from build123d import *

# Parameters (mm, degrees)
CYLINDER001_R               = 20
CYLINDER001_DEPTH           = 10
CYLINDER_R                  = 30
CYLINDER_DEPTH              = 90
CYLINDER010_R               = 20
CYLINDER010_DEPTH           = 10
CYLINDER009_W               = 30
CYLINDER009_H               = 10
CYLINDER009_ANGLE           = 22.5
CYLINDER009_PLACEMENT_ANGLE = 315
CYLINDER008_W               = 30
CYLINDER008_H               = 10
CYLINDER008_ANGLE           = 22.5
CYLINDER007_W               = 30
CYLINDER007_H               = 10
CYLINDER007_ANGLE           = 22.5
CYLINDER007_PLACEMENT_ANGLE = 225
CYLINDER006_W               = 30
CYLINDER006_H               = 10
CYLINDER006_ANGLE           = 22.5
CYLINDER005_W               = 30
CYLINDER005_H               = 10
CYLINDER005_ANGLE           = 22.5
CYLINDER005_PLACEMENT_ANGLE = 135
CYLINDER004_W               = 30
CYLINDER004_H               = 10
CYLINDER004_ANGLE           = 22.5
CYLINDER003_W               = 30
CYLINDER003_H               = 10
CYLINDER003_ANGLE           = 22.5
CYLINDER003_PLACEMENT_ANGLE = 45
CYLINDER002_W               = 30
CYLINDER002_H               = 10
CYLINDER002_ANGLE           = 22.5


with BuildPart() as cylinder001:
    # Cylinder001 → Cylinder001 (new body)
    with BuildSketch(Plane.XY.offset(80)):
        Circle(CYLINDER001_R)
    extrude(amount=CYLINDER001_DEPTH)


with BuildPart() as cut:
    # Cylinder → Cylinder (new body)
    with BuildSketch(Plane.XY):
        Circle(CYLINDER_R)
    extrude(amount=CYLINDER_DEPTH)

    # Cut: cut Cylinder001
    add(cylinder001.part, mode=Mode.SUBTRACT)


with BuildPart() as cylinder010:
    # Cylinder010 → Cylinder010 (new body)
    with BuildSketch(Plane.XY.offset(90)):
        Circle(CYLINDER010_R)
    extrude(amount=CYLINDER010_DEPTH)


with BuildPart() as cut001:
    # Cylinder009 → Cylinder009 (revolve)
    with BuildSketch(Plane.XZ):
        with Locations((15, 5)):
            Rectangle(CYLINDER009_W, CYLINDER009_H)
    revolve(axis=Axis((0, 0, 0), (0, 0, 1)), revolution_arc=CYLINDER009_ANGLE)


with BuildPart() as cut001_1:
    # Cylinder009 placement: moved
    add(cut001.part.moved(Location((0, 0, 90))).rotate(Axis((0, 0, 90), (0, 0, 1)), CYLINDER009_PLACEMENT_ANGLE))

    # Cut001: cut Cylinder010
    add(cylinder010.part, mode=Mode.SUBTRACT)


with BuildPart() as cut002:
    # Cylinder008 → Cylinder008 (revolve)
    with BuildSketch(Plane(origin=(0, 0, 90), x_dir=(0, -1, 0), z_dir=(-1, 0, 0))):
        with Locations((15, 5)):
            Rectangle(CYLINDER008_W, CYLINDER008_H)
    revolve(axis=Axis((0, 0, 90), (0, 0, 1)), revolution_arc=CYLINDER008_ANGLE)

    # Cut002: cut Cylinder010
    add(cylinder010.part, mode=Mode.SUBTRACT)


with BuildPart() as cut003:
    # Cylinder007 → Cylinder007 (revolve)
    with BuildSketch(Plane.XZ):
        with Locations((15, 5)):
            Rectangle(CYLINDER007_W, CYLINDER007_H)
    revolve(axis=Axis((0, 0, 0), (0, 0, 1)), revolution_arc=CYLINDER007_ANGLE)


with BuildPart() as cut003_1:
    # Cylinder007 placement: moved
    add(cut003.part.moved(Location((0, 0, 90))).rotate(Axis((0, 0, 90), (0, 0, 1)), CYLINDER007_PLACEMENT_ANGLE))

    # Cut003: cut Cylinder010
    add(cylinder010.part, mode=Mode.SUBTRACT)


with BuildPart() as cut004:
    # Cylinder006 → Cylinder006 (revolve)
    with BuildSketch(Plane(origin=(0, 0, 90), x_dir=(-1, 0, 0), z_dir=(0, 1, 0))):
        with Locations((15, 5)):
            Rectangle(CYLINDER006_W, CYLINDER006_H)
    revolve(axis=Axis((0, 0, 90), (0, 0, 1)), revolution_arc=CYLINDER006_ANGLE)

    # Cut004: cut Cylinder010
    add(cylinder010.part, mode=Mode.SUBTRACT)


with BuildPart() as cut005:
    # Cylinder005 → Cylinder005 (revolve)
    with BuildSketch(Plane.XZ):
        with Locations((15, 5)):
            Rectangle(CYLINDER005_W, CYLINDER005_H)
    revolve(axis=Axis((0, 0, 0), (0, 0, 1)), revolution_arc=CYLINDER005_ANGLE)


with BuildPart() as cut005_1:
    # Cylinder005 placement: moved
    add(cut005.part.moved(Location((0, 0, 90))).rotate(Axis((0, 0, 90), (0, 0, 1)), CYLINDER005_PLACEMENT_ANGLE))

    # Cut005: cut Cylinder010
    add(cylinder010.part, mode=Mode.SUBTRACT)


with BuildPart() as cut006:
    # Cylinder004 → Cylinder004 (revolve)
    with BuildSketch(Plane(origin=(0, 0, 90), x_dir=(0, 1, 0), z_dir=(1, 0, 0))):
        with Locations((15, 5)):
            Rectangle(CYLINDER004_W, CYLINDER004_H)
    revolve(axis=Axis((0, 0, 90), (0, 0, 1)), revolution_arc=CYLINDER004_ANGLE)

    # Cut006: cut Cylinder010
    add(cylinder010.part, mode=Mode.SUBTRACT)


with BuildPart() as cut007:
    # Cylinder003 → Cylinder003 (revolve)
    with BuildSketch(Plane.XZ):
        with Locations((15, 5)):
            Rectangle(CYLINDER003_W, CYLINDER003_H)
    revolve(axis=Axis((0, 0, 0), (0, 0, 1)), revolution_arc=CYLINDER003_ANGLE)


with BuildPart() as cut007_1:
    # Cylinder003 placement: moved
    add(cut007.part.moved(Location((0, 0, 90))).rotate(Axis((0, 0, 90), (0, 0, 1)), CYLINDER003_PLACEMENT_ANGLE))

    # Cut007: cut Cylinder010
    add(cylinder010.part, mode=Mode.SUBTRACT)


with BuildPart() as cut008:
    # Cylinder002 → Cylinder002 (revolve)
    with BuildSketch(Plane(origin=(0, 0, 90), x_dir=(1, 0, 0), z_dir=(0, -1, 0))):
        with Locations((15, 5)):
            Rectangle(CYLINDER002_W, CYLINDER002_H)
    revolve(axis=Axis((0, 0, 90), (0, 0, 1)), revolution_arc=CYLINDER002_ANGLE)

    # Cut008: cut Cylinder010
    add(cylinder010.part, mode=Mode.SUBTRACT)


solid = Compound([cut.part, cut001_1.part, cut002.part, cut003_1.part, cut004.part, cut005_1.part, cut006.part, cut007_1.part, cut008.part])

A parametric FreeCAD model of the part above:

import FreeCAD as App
import Part
import Sketcher
from FreeCAD import Vector
Q = App.Units.Quantity

doc = App.newDocument("Part")
body = doc.addObject("PartDesign::Body", "Body")

sketch1 = body.newObject("Sketcher::SketchObject", "Sketch")
sketch1.AttachmentSupport = (doc.getObject("XY_Plane"), [""])
sketch1.MapMode = "FlatFace"
sketch1.AttachmentOffset = App.Placement(Vector(0, 0, 80), App.Rotation())
sketch1.addGeometry(Part.Circle(Vector(0, 0, 0), Vector(0, 0, 1), 20), False)
sketch1.addConstraint(Sketcher.Constraint("Coincident", 0, 3, -1, 1))
sketch1.addConstraint(Sketcher.Constraint("Diameter", 0, Q("40 mm")))
pad1 = body.newObject("PartDesign::Pad", "Pad")
pad1.Profile = sketch1
pad1.Length = 10
body2 = doc.addObject("PartDesign::Body", "Body001")

sketch2 = body2.newObject("Sketcher::SketchObject", "Sketch001")
sketch2.AttachmentSupport = (doc.getObject("XY_Plane001"), [""])
sketch2.MapMode = "FlatFace"
sketch2.addGeometry(Part.Circle(Vector(0, 0, 0), Vector(0, 0, 1), 30), False)
sketch2.addConstraint(Sketcher.Constraint("Coincident", 0, 3, -1, 1))
sketch2.addConstraint(Sketcher.Constraint("Diameter", 0, Q("60 mm")))
pad2 = body2.newObject("PartDesign::Pad", "Pad001")
pad2.Profile = sketch2
pad2.Length = 90
doc.recompute()

boolean = body2.newObject("PartDesign::Boolean", "Boolean")
boolean.Type = "Cut"
boolean.addObjects([body])
body3 = doc.addObject("PartDesign::Body", "Body002")

sketch3 = body3.newObject("Sketcher::SketchObject", "Sketch002")
sketch3.AttachmentSupport = (doc.getObject("XY_Plane002"), [""])
sketch3.MapMode = "FlatFace"
sketch3.AttachmentOffset = App.Placement(Vector(0, 0, 90), App.Rotation())
sketch3.addGeometry(Part.Circle(Vector(0, 0, 0), Vector(0, 0, 1), 20), False)
sketch3.addConstraint(Sketcher.Constraint("Coincident", 0, 3, -1, 1))
sketch3.addConstraint(Sketcher.Constraint("Diameter", 0, Q("40 mm")))
pad3 = body3.newObject("PartDesign::Pad", "Pad002")
pad3.Profile = sketch3
pad3.Length = 10
body4 = doc.addObject("PartDesign::Body", "Body003")

sketch4 = body4.newObject("Sketcher::SketchObject", "Sketch003")
sketch4.AttachmentSupport = (doc.getObject("XZ_Plane003"), [""])
sketch4.MapMode = "FlatFace"
sketch4.addGeometry(Part.LineSegment(Vector(0, 10, 0), Vector(0, 0, 0)), False)
sketch4.addGeometry(Part.LineSegment(Vector(0, 0, 0), Vector(30, 0, 0)), False)
sketch4.addGeometry(Part.LineSegment(Vector(30, 0, 0), Vector(30, 10, 0)), False)
sketch4.addGeometry(Part.LineSegment(Vector(30, 10, 0), Vector(0, 10, 0)), False)
sketch4.addConstraint(Sketcher.Constraint("Coincident", 0, 2, 1, 1))
sketch4.addConstraint(Sketcher.Constraint("Coincident", 1, 2, 2, 1))
sketch4.addConstraint(Sketcher.Constraint("Coincident", 2, 2, 3, 1))
sketch4.addConstraint(Sketcher.Constraint("Coincident", 3, 2, 0, 1))
sketch4.addConstraint(Sketcher.Constraint("Vertical", 0))
sketch4.addConstraint(Sketcher.Constraint("Horizontal", 1))
sketch4.addConstraint(Sketcher.Constraint("Vertical", 2))
sketch4.addConstraint(Sketcher.Constraint("Horizontal", 3))
sketch4.addConstraint(Sketcher.Constraint("Coincident", 0, 2, -1, 1))
sketch4.addConstraint(Sketcher.Constraint("DistanceX", 1, 1, 1, 2, Q("30 mm")))
sketch4.addConstraint(Sketcher.Constraint("DistanceY", 0, 2, 0, 1, Q("10 mm")))
revolution = body4.newObject("PartDesign::Revolution", "Revolution")
revolution.Profile = sketch4
revolution.ReferenceAxis = (sketch4, ["V_Axis"])
revolution.Angle = 22.5
body5 = doc.addObject("PartDesign::Body", "Body004")
doc.recompute()

body4.Placement = App.Placement(Vector(0, 0, 90), App.Rotation(Vector(0, 0, 1), 315))
boolean2 = body5.newObject("PartDesign::Boolean", "Boolean001")
boolean2.Type = "Fuse"
boolean2.addObjects([body4])
doc.recompute()

body6 = doc.addObject("PartDesign::Body", "Body005")
body6.BaseFeature = body3
boolean3 = body5.newObject("PartDesign::Boolean", "Boolean002")
boolean3.Type = "Cut"
boolean3.addObjects([body6])
doc.recompute()
body7 = doc.addObject("PartDesign::Body", "Body006")

sketch5 = body7.newObject("Sketcher::SketchObject", "Sketch004")
sketch5.AttachmentSupport = (doc.getObject("YZ_Plane006"), [""])
sketch5.MapMode = "FlatFace"
sketch5.addGeometry(Part.LineSegment(Vector(0, 100, 0), Vector(0, 90, 0)), False)
sketch5.addGeometry(Part.LineSegment(Vector(0, 90, 0), Vector(-30, 90, 0)), False)
sketch5.addGeometry(Part.LineSegment(Vector(-30, 90, 0), Vector(-30, 100, 0)), False)
sketch5.addGeometry(Part.LineSegment(Vector(-30, 100, 0), Vector(0, 100, 0)), False)
sketch5.addConstraint(Sketcher.Constraint("Coincident", 0, 2, 1, 1))
sketch5.addConstraint(Sketcher.Constraint("Coincident", 1, 2, 2, 1))
sketch5.addConstraint(Sketcher.Constraint("Coincident", 2, 2, 3, 1))
sketch5.addConstraint(Sketcher.Constraint("Coincident", 3, 2, 0, 1))
sketch5.addConstraint(Sketcher.Constraint("Vertical", 0))
sketch5.addConstraint(Sketcher.Constraint("Horizontal", 1))
sketch5.addConstraint(Sketcher.Constraint("Vertical", 2))
sketch5.addConstraint(Sketcher.Constraint("Horizontal", 3))
sketch5.addConstraint(Sketcher.Constraint("PointOnObject", 0, 2, -2))
sketch5.addConstraint(Sketcher.Constraint("DistanceX", 1, 2, 1, 1, Q("30 mm")))
sketch5.addConstraint(Sketcher.Constraint("DistanceY", 0, 2, 0, 1, Q("10 mm")))
sketch5.addConstraint(Sketcher.Constraint("DistanceY", -1, 1, 0, 2, Q("90 mm")))
revolution2 = body7.newObject("PartDesign::Revolution", "Revolution001")
revolution2.Profile = sketch5
revolution2.ReferenceAxis = (sketch5, ["V_Axis"])
revolution2.Angle = 22.5
doc.recompute()

body8 = doc.addObject("PartDesign::Body", "Body007")
body8.BaseFeature = body3
boolean4 = body7.newObject("PartDesign::Boolean", "Boolean003")
boolean4.Type = "Cut"
boolean4.addObjects([body8])
doc.recompute()
body9 = doc.addObject("PartDesign::Body", "Body008")

sketch6 = body9.newObject("Sketcher::SketchObject", "Sketch005")
sketch6.AttachmentSupport = (doc.getObject("XZ_Plane008"), [""])
sketch6.MapMode = "FlatFace"
sketch6.addGeometry(Part.LineSegment(Vector(0, 10, 0), Vector(0, 0, 0)), False)
sketch6.addGeometry(Part.LineSegment(Vector(0, 0, 0), Vector(30, 0, 0)), False)
sketch6.addGeometry(Part.LineSegment(Vector(30, 0, 0), Vector(30, 10, 0)), False)
sketch6.addGeometry(Part.LineSegment(Vector(30, 10, 0), Vector(0, 10, 0)), False)
sketch6.addConstraint(Sketcher.Constraint("Coincident", 0, 2, 1, 1))
sketch6.addConstraint(Sketcher.Constraint("Coincident", 1, 2, 2, 1))
sketch6.addConstraint(Sketcher.Constraint("Coincident", 2, 2, 3, 1))
sketch6.addConstraint(Sketcher.Constraint("Coincident", 3, 2, 0, 1))
sketch6.addConstraint(Sketcher.Constraint("Vertical", 0))
sketch6.addConstraint(Sketcher.Constraint("Horizontal", 1))
sketch6.addConstraint(Sketcher.Constraint("Vertical", 2))
sketch6.addConstraint(Sketcher.Constraint("Horizontal", 3))
sketch6.addConstraint(Sketcher.Constraint("Coincident", 0, 2, -1, 1))
sketch6.addConstraint(Sketcher.Constraint("DistanceX", 1, 1, 1, 2, Q("30 mm")))
sketch6.addConstraint(Sketcher.Constraint("DistanceY", 0, 2, 0, 1, Q("10 mm")))
revolution3 = body9.newObject("PartDesign::Revolution", "Revolution002")
revolution3.Profile = sketch6
revolution3.ReferenceAxis = (sketch6, ["V_Axis"])
revolution3.Angle = 22.5
body10 = doc.addObject("PartDesign::Body", "Body009")
doc.recompute()

body9.Placement = App.Placement(Vector(0, 0, 90), App.Rotation(Vector(0, 0, 1), 225))
boolean5 = body10.newObject("PartDesign::Boolean", "Boolean004")
boolean5.Type = "Fuse"
boolean5.addObjects([body9])
doc.recompute()

body11 = doc.addObject("PartDesign::Body", "Body010")
body11.BaseFeature = body3
boolean6 = body10.newObject("PartDesign::Boolean", "Boolean005")
boolean6.Type = "Cut"
boolean6.addObjects([body11])
doc.recompute()
body12 = doc.addObject("PartDesign::Body", "Body011")

sketch7 = body12.newObject("Sketcher::SketchObject", "Sketch006")
sketch7.AttachmentSupport = (doc.getObject("XZ_Plane011"), [""])
sketch7.MapMode = "FlatFace"
sketch7.addGeometry(Part.LineSegment(Vector(0, 100, 0), Vector(0, 90, 0)), False)
sketch7.addGeometry(Part.LineSegment(Vector(0, 90, 0), Vector(-30, 90, 0)), False)
sketch7.addGeometry(Part.LineSegment(Vector(-30, 90, 0), Vector(-30, 100, 0)), False)
sketch7.addGeometry(Part.LineSegment(Vector(-30, 100, 0), Vector(0, 100, 0)), False)
sketch7.addConstraint(Sketcher.Constraint("Coincident", 0, 2, 1, 1))
sketch7.addConstraint(Sketcher.Constraint("Coincident", 1, 2, 2, 1))
sketch7.addConstraint(Sketcher.Constraint("Coincident", 2, 2, 3, 1))
sketch7.addConstraint(Sketcher.Constraint("Coincident", 3, 2, 0, 1))
sketch7.addConstraint(Sketcher.Constraint("Vertical", 0))
sketch7.addConstraint(Sketcher.Constraint("Horizontal", 1))
sketch7.addConstraint(Sketcher.Constraint("Vertical", 2))
sketch7.addConstraint(Sketcher.Constraint("Horizontal", 3))
sketch7.addConstraint(Sketcher.Constraint("PointOnObject", 0, 2, -2))
sketch7.addConstraint(Sketcher.Constraint("DistanceX", 1, 2, 1, 1, Q("30 mm")))
sketch7.addConstraint(Sketcher.Constraint("DistanceY", 0, 2, 0, 1, Q("10 mm")))
sketch7.addConstraint(Sketcher.Constraint("DistanceY", -1, 1, 0, 2, Q("90 mm")))
revolution4 = body12.newObject("PartDesign::Revolution", "Revolution003")
revolution4.Profile = sketch7
revolution4.ReferenceAxis = (sketch7, ["V_Axis"])
revolution4.Angle = 22.5
doc.recompute()

body13 = doc.addObject("PartDesign::Body", "Body012")
body13.BaseFeature = body3
boolean7 = body12.newObject("PartDesign::Boolean", "Boolean006")
boolean7.Type = "Cut"
boolean7.addObjects([body13])
doc.recompute()
body14 = doc.addObject("PartDesign::Body", "Body013")

sketch8 = body14.newObject("Sketcher::SketchObject", "Sketch007")
sketch8.AttachmentSupport = (doc.getObject("XZ_Plane013"), [""])
sketch8.MapMode = "FlatFace"
sketch8.addGeometry(Part.LineSegment(Vector(0, 10, 0), Vector(0, 0, 0)), False)
sketch8.addGeometry(Part.LineSegment(Vector(0, 0, 0), Vector(30, 0, 0)), False)
sketch8.addGeometry(Part.LineSegment(Vector(30, 0, 0), Vector(30, 10, 0)), False)
sketch8.addGeometry(Part.LineSegment(Vector(30, 10, 0), Vector(0, 10, 0)), False)
sketch8.addConstraint(Sketcher.Constraint("Coincident", 0, 2, 1, 1))
sketch8.addConstraint(Sketcher.Constraint("Coincident", 1, 2, 2, 1))
sketch8.addConstraint(Sketcher.Constraint("Coincident", 2, 2, 3, 1))
sketch8.addConstraint(Sketcher.Constraint("Coincident", 3, 2, 0, 1))
sketch8.addConstraint(Sketcher.Constraint("Vertical", 0))
sketch8.addConstraint(Sketcher.Constraint("Horizontal", 1))
sketch8.addConstraint(Sketcher.Constraint("Vertical", 2))
sketch8.addConstraint(Sketcher.Constraint("Horizontal", 3))
sketch8.addConstraint(Sketcher.Constraint("Coincident", 0, 2, -1, 1))
sketch8.addConstraint(Sketcher.Constraint("DistanceX", 1, 1, 1, 2, Q("30 mm")))
sketch8.addConstraint(Sketcher.Constraint("DistanceY", 0, 2, 0, 1, Q("10 mm")))
revolution5 = body14.newObject("PartDesign::Revolution", "Revolution004")
revolution5.Profile = sketch8
revolution5.ReferenceAxis = (sketch8, ["V_Axis"])
revolution5.Angle = 22.5
body15 = doc.addObject("PartDesign::Body", "Body014")
doc.recompute()

body14.Placement = App.Placement(Vector(0, 0, 90), App.Rotation(Vector(0, 0, 1), 135))
boolean8 = body15.newObject("PartDesign::Boolean", "Boolean007")
boolean8.Type = "Fuse"
boolean8.addObjects([body14])
doc.recompute()

body16 = doc.addObject("PartDesign::Body", "Body015")
body16.BaseFeature = body3
boolean9 = body15.newObject("PartDesign::Boolean", "Boolean008")
boolean9.Type = "Cut"
boolean9.addObjects([body16])
doc.recompute()
body17 = doc.addObject("PartDesign::Body", "Body016")

sketch9 = body17.newObject("Sketcher::SketchObject", "Sketch008")
sketch9.AttachmentSupport = (doc.getObject("YZ_Plane016"), [""])
sketch9.MapMode = "FlatFace"
sketch9.addGeometry(Part.LineSegment(Vector(0, 100, 0), Vector(0, 90, 0)), False)
sketch9.addGeometry(Part.LineSegment(Vector(0, 90, 0), Vector(30, 90, 0)), False)
sketch9.addGeometry(Part.LineSegment(Vector(30, 90, 0), Vector(30, 100, 0)), False)
sketch9.addGeometry(Part.LineSegment(Vector(30, 100, 0), Vector(0, 100, 0)), False)
sketch9.addConstraint(Sketcher.Constraint("Coincident", 0, 2, 1, 1))
sketch9.addConstraint(Sketcher.Constraint("Coincident", 1, 2, 2, 1))
sketch9.addConstraint(Sketcher.Constraint("Coincident", 2, 2, 3, 1))
sketch9.addConstraint(Sketcher.Constraint("Coincident", 3, 2, 0, 1))
sketch9.addConstraint(Sketcher.Constraint("Vertical", 0))
sketch9.addConstraint(Sketcher.Constraint("Horizontal", 1))
sketch9.addConstraint(Sketcher.Constraint("Vertical", 2))
sketch9.addConstraint(Sketcher.Constraint("Horizontal", 3))
sketch9.addConstraint(Sketcher.Constraint("PointOnObject", 0, 2, -2))
sketch9.addConstraint(Sketcher.Constraint("DistanceX", 1, 1, 1, 2, Q("30 mm")))
sketch9.addConstraint(Sketcher.Constraint("DistanceY", 0, 2, 0, 1, Q("10 mm")))
sketch9.addConstraint(Sketcher.Constraint("DistanceY", -1, 1, 0, 2, Q("90 mm")))
revolution6 = body17.newObject("PartDesign::Revolution", "Revolution005")
revolution6.Profile = sketch9
revolution6.ReferenceAxis = (sketch9, ["V_Axis"])
revolution6.Angle = 22.5
doc.recompute()

body18 = doc.addObject("PartDesign::Body", "Body017")
body18.BaseFeature = body3
boolean10 = body17.newObject("PartDesign::Boolean", "Boolean009")
boolean10.Type = "Cut"
boolean10.addObjects([body18])
doc.recompute()
body19 = doc.addObject("PartDesign::Body", "Body018")

sketch10 = body19.newObject("Sketcher::SketchObject", "Sketch009")
sketch10.AttachmentSupport = (doc.getObject("XZ_Plane018"), [""])
sketch10.MapMode = "FlatFace"
sketch10.addGeometry(Part.LineSegment(Vector(0, 10, 0), Vector(0, 0, 0)), False)
sketch10.addGeometry(Part.LineSegment(Vector(0, 0, 0), Vector(30, 0, 0)), False)
sketch10.addGeometry(Part.LineSegment(Vector(30, 0, 0), Vector(30, 10, 0)), False)
sketch10.addGeometry(Part.LineSegment(Vector(30, 10, 0), Vector(0, 10, 0)), False)
sketch10.addConstraint(Sketcher.Constraint("Coincident", 0, 2, 1, 1))
sketch10.addConstraint(Sketcher.Constraint("Coincident", 1, 2, 2, 1))
sketch10.addConstraint(Sketcher.Constraint("Coincident", 2, 2, 3, 1))
sketch10.addConstraint(Sketcher.Constraint("Coincident", 3, 2, 0, 1))
sketch10.addConstraint(Sketcher.Constraint("Vertical", 0))
sketch10.addConstraint(Sketcher.Constraint("Horizontal", 1))
sketch10.addConstraint(Sketcher.Constraint("Vertical", 2))
sketch10.addConstraint(Sketcher.Constraint("Horizontal", 3))
sketch10.addConstraint(Sketcher.Constraint("Coincident", 0, 2, -1, 1))
sketch10.addConstraint(Sketcher.Constraint("DistanceX", 1, 1, 1, 2, Q("30 mm")))
sketch10.addConstraint(Sketcher.Constraint("DistanceY", 0, 2, 0, 1, Q("10 mm")))
revolution7 = body19.newObject("PartDesign::Revolution", "Revolution006")
revolution7.Profile = sketch10
revolution7.ReferenceAxis = (sketch10, ["V_Axis"])
revolution7.Angle = 22.5
body20 = doc.addObject("PartDesign::Body", "Body019")
doc.recompute()

body19.Placement = App.Placement(Vector(0, 0, 90), App.Rotation(Vector(0, 0, 1), 45))
boolean11 = body20.newObject("PartDesign::Boolean", "Boolean010")
boolean11.Type = "Fuse"
boolean11.addObjects([body19])
doc.recompute()

body21 = doc.addObject("PartDesign::Body", "Body020")
body21.BaseFeature = body3
boolean12 = body20.newObject("PartDesign::Boolean", "Boolean011")
boolean12.Type = "Cut"
boolean12.addObjects([body21])
doc.recompute()
body22 = doc.addObject("PartDesign::Body", "Body021")

sketch11 = body22.newObject("Sketcher::SketchObject", "Sketch010")
sketch11.AttachmentSupport = (doc.getObject("XZ_Plane021"), [""])
sketch11.MapMode = "FlatFace"
sketch11.addGeometry(Part.LineSegment(Vector(0, 100, 0), Vector(0, 90, 0)), False)
sketch11.addGeometry(Part.LineSegment(Vector(0, 90, 0), Vector(30, 90, 0)), False)
sketch11.addGeometry(Part.LineSegment(Vector(30, 90, 0), Vector(30, 100, 0)), False)
sketch11.addGeometry(Part.LineSegment(Vector(30, 100, 0), Vector(0, 100, 0)), False)
sketch11.addConstraint(Sketcher.Constraint("Coincident", 0, 2, 1, 1))
sketch11.addConstraint(Sketcher.Constraint("Coincident", 1, 2, 2, 1))
sketch11.addConstraint(Sketcher.Constraint("Coincident", 2, 2, 3, 1))
sketch11.addConstraint(Sketcher.Constraint("Coincident", 3, 2, 0, 1))
sketch11.addConstraint(Sketcher.Constraint("Vertical", 0))
sketch11.addConstraint(Sketcher.Constraint("Horizontal", 1))
sketch11.addConstraint(Sketcher.Constraint("Vertical", 2))
sketch11.addConstraint(Sketcher.Constraint("Horizontal", 3))
sketch11.addConstraint(Sketcher.Constraint("PointOnObject", 0, 2, -2))
sketch11.addConstraint(Sketcher.Constraint("DistanceX", 1, 1, 1, 2, Q("30 mm")))
sketch11.addConstraint(Sketcher.Constraint("DistanceY", 0, 2, 0, 1, Q("10 mm")))
sketch11.addConstraint(Sketcher.Constraint("DistanceY", -1, 1, 0, 2, Q("90 mm")))
revolution8 = body22.newObject("PartDesign::Revolution", "Revolution007")
revolution8.Profile = sketch11
revolution8.ReferenceAxis = (sketch11, ["V_Axis"])
revolution8.Angle = 22.5
doc.recompute()

boolean13 = body22.newObject("PartDesign::Boolean", "Boolean012")
boolean13.Type = "Cut"
boolean13.addObjects([body3])

doc.recompute()
